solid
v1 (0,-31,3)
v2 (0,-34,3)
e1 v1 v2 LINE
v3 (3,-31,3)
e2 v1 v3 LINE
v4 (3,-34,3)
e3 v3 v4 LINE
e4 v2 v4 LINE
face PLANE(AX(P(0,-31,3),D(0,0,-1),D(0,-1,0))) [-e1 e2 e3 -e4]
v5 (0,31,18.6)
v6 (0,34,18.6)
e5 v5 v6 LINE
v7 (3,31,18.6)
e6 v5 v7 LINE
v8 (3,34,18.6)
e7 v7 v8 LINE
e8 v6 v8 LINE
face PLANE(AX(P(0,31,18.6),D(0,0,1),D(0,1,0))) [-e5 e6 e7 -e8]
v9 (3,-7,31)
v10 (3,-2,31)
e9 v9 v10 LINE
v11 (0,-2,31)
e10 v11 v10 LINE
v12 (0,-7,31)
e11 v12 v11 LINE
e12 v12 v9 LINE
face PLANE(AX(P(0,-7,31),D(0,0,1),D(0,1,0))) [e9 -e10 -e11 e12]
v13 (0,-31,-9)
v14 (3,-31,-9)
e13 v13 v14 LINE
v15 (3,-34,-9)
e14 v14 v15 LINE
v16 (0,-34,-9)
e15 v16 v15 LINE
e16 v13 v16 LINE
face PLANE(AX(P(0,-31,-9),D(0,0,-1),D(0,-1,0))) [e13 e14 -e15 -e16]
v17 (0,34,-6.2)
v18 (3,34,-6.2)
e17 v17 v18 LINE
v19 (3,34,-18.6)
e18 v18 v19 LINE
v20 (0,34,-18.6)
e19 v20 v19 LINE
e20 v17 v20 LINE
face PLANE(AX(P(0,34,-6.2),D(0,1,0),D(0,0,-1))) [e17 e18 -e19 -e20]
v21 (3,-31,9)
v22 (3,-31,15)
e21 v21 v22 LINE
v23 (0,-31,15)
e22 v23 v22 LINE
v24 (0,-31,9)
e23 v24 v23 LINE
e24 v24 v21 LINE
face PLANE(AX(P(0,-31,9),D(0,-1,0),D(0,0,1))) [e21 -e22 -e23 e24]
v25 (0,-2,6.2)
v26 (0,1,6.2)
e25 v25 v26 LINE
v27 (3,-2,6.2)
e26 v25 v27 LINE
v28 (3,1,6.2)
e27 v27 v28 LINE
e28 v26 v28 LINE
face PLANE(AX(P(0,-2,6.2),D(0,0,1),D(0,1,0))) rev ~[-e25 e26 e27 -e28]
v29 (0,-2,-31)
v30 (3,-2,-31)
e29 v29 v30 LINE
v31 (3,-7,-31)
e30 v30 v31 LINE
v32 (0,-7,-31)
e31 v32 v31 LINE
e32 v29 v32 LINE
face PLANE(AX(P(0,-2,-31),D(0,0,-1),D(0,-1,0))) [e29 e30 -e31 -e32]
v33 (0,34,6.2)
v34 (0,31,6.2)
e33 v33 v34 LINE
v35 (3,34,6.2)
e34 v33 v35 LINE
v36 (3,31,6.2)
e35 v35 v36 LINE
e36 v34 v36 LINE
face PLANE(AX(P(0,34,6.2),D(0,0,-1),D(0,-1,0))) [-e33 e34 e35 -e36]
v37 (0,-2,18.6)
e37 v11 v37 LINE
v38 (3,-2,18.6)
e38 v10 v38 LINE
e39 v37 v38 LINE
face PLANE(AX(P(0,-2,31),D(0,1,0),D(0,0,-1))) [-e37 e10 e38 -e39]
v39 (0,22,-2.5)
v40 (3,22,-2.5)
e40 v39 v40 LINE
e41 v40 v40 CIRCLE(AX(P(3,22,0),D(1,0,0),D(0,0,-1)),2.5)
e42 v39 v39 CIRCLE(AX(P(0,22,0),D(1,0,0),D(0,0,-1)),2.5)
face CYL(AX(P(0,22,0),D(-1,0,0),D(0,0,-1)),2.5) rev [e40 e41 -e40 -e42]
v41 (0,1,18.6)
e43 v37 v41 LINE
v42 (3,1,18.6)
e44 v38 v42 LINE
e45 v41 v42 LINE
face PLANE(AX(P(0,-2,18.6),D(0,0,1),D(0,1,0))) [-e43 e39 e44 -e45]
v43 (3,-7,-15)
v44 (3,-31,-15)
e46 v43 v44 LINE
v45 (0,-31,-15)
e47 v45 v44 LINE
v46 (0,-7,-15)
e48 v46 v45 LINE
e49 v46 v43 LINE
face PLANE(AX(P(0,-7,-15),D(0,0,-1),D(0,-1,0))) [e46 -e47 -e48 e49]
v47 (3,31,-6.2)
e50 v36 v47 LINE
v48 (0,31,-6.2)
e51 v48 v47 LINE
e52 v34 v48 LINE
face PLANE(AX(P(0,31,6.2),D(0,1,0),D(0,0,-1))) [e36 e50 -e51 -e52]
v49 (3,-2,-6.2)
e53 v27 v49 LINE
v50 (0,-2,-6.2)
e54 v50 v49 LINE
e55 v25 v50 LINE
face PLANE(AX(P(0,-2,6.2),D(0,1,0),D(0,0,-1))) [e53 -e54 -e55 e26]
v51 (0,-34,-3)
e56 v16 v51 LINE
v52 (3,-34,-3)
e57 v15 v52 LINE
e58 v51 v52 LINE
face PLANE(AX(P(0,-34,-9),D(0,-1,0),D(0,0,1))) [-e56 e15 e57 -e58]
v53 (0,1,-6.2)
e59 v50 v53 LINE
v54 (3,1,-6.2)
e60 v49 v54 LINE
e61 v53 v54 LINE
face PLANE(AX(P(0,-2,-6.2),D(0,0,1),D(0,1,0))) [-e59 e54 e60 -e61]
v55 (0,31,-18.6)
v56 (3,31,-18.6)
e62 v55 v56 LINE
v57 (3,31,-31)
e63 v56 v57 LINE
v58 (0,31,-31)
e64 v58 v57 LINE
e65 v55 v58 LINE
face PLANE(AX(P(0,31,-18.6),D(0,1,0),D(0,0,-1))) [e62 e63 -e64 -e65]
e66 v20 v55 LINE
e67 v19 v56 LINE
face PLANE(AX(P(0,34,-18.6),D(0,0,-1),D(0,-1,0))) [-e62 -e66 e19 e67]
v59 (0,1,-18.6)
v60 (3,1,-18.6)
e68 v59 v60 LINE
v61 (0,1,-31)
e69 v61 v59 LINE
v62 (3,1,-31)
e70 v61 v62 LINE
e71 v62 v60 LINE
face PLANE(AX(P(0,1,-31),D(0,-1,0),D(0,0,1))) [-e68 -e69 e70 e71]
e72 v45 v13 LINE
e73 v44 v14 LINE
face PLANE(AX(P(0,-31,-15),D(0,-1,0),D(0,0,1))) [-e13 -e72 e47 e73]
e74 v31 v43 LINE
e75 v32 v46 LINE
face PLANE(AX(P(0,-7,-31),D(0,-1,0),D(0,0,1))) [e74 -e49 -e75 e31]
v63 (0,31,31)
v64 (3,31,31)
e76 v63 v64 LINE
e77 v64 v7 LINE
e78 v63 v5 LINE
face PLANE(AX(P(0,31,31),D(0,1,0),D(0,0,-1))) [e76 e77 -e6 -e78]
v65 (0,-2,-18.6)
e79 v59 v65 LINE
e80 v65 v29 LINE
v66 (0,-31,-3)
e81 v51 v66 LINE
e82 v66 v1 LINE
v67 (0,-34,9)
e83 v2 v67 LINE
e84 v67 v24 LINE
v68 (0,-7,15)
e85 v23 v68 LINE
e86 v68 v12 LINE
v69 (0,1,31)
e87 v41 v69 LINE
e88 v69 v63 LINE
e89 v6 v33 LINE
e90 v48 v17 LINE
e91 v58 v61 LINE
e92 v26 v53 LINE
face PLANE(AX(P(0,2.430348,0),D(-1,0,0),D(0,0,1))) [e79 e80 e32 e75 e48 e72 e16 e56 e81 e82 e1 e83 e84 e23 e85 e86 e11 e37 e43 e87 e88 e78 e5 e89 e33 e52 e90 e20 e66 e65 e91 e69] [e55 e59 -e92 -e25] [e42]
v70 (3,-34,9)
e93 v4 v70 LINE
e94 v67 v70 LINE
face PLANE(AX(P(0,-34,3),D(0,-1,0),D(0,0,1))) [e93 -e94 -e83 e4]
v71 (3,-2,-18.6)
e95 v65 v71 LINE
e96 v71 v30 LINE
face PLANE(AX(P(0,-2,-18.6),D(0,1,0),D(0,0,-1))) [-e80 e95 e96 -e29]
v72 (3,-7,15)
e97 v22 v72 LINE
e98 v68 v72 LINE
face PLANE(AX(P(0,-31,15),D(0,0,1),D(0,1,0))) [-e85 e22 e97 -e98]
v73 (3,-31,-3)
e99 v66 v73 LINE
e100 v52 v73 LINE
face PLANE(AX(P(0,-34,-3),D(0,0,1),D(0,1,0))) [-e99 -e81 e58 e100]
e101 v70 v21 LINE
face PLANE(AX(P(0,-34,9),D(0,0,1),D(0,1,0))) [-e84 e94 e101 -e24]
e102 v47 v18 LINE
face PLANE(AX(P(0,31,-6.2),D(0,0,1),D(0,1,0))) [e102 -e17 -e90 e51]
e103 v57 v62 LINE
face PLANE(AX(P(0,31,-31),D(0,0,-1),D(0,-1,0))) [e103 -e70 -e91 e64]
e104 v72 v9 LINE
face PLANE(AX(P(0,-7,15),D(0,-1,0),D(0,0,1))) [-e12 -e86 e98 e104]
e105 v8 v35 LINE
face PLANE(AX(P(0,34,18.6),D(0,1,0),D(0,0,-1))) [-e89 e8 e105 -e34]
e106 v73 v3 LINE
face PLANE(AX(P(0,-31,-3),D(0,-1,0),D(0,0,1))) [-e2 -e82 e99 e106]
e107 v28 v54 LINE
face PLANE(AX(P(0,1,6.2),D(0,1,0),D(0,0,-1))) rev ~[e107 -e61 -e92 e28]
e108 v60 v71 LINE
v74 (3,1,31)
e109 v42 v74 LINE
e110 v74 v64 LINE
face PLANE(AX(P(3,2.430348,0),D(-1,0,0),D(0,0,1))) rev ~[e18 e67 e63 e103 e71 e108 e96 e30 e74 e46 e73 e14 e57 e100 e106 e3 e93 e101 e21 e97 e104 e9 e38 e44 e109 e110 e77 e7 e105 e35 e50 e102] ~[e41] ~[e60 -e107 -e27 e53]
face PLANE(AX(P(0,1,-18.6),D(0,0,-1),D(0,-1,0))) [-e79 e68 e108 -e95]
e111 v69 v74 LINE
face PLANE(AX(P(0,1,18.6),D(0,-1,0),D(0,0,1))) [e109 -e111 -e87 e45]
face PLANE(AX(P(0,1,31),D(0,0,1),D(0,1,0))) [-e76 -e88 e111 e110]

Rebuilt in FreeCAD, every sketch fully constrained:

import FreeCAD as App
import Part
import Sketcher

doc = App.newDocument("Part")
body = doc.addObject("PartDesign::Body", "Body")

# Sketch on YZ plane
sketch1 = body.newObject("Sketcher::SketchObject", "Sketch")
sketch1.AttachmentSupport = (doc.getObject("YZ_Plane"), [""])
sketch1.MapMode = "FlatFace"
sketch1.addGeometry(Part.LineSegment(App.Vector(-7, -31, 0), App.Vector(-2, -31, 0)), False)
sketch1.addGeometry(Part.LineSegment(App.Vector(-2, -31, 0), App.Vector(-2, -18.6, 0)), False)
sketch1.addGeometry(Part.LineSegment(App.Vector(-2, -18.6, 0), App.Vector(1, -18.6, 0)), False)
sketch1.addGeometry(Part.LineSegment(App.Vector(1, -18.6, 0), App.Vector(1, -31, 0)), False)
sketch1.addGeometry(Part.LineSegment(App.Vector(1, -31, 0), App.Vector(31, -31, 0)), False)
sketch1.addGeometry(Part.LineSegment(App.Vector(31, -31, 0), App.Vector(31, -18.6, 0)), False)
sketch1.addGeometry(Part.LineSegment(App.Vector(31, -18.6, 0), App.Vector(34, -18.6, 0)), False)
sketch1.addGeometry(Part.LineSegment(App.Vector(34, -18.6, 0), App.Vector(34, -6.2, 0)), False)
sketch1.addGeometry(Part.LineSegment(App.Vector(34, -6.2, 0), App.Vector(31, -6.2, 0)), False)
sketch1.addGeometry(Part.LineSegment(App.Vector(31, -6.2, 0), App.Vector(31, 6.2, 0)), False)
sketch1.addGeometry(Part.LineSegment(App.Vector(31, 6.2, 0), App.Vector(34, 6.2, 0)), False)
sketch1.addGeometry(Part.LineSegment(App.Vector(34, 6.2, 0), App.Vector(34, 18.6, 0)), False)
sketch1.addGeometry(Part.LineSegment(App.Vector(34, 18.6, 0), App.Vector(31, 18.6, 0)), False)
sketch1.addGeometry(Part.LineSegment(App.Vector(31, 18.6, 0), App.Vector(31, 31, 0)), False)
sketch1.addGeometry(Part.LineSegment(App.Vector(31, 31, 0), App.Vector(1, 31, 0)), False)
sketch1.addGeometry(Part.LineSegment(App.Vector(1, 31, 0), App.Vector(1, 18.6, 0)), False)
sketch1.addGeometry(Part.LineSegment(App.Vector(1, 18.6, 0), App.Vector(-2, 18.6, 0)), False)
sketch1.addGeometry(Part.LineSegment(App.Vector(-2, 18.6, 0), App.Vector(-2, 31, 0)), False)
sketch1.addGeometry(Part.LineSegment(App.Vector(-2, 31, 0), App.Vector(-7, 31, 0)), False)
sketch1.addGeometry(Part.LineSegment(App.Vector(-7, 31, 0), App.Vector(-7, 15, 0)), False)
sketch1.addGeometry(Part.LineSegment(App.Vector(-7, 15, 0), App.Vector(-31, 15, 0)), False)
sketch1.addGeometry(Part.LineSegment(App.Vector(-31, 15, 0), App.Vector(-31, 9, 0)), False)
sketch1.addGeometry(Part.LineSegment(App.Vector(-31, 9, 0), App.Vector(-34, 9, 0)), False)
sketch1.addGeometry(Part.LineSegment(App.Vector(-34, 9, 0), App.Vector(-34, 3, 0)), False)
sketch1.addGeometry(Part.LineSegment(App.Vector(-34, 3, 0), App.Vector(-31, 3, 0)), False)
sketch1.addGeometry(Part.LineSegment(App.Vector(-31, 3, 0), App.Vector(-31, -3, 0)), False)
sketch1.addGeometry(Part.LineSegment(App.Vector(-31, -3, 0), App.Vector(-34, -3, 0)), False)
sketch1.addGeometry(Part.LineSegment(App.Vector(-34, -3, 0), App.Vector(-34, -9, 0)), False)
sketch1.addGeometry(Part.LineSegment(App.Vector(-34, -9, 0), App.Vector(-31, -9, 0)), False)
sketch1.addGeometry(Part.LineSegment(App.Vector(-31, -9, 0), App.Vector(-31, -15, 0)), False)
sketch1.addGeometry(Part.LineSegment(App.Vector(-31, -15, 0), App.Vector(-7, -15, 0)), False)
sketch1.addGeometry(Part.LineSegment(App.Vector(-7, -15, 0), App.Vector(-7, -31, 0)), False)
sketch1.addGeometry(Part.LineSegment(App.Vector(-2, 6.2, 0), App.Vector(1, 6.2, 0)), False)
sketch1.addGeometry(Part.LineSegment(App.Vector(1, 6.2, 0), App.Vector(1, -6.2, 0)), False)
sketch1.addGeometry(Part.LineSegment(App.Vector(1, -6.2, 0), App.Vector(-2, -6.2, 0)), False)
sketch1.addGeometry(Part.LineSegment(App.Vector(-2, -6.2, 0), App.Vector(-2, 6.2, 0)), False)
sketch1.addGeometry(Part.Circle(App.Vector(22, 0, 0), App.Vector(0, 0, 1), 2.5), False)
sketch1.addConstraint(Sketcher.Constraint("Coincident", 0, 2, 1, 1))
sketch1.addConstraint(Sketcher.Constraint("Coincident", 1, 2, 2, 1))
sketch1.addConstraint(Sketcher.Constraint("Coincident", 2, 2, 3, 1))
sketch1.addConstraint(Sketcher.Constraint("Coincident", 3, 2, 4, 1))
sketch1.addConstraint(Sketcher.Constraint("Coincident", 4, 2, 5, 1))
sketch1.addConstraint(Sketcher.Constraint("Coincident", 5, 2, 6, 1))
sketch1.addConstraint(Sketcher.Constraint("Coincident", 6, 2, 7, 1))
sketch1.addConstraint(Sketcher.Constraint("Coincident", 7, 2, 8, 1))
sketch1.addConstraint(Sketcher.Constraint("Coincident", 8, 2, 9, 1))
sketch1.addConstraint(Sketcher.Constraint("Coincident", 9, 2, 10, 1))
sketch1.addConstraint(Sketcher.Constraint("Coincident", 10, 2, 11, 1))
sketch1.addConstraint(Sketcher.Constraint("Coincident", 11, 2, 12, 1))
sketch1.addConstraint(Sketcher.Constraint("Coincident", 12, 2, 13, 1))
sketch1.addConstraint(Sketcher.Constraint("Coincident", 13, 2, 14, 1))
sketch1.addConstraint(Sketcher.Constraint("Coincident", 14, 2, 15, 1))
sketch1.addConstraint(Sketcher.Constraint("Coincident", 15, 2, 16, 1))
sketch1.addConstraint(Sketcher.Constraint("Coincident", 16, 2, 17, 1))
sketch1.addConstraint(Sketcher.Constraint("Coincident", 17, 2, 18, 1))
sketch1.addConstraint(Sketcher.Constraint("Coincident", 18, 2, 19, 1))
sketch1.addConstraint(Sketcher.Constraint("Coincident", 19, 2, 20, 1))
sketch1.addConstraint(Sketcher.Constraint("Coincident", 20, 2, 21, 1))
sketch1.addConstraint(Sketcher.Constraint("Coincident", 21, 2, 22, 1))
sketch1.addConstraint(Sketcher.Constraint("Coincident", 22, 2, 23, 1))
sketch1.addConstraint(Sketcher.Constraint("Coincident", 23, 2, 24, 1))
sketch1.addConstraint(Sketcher.Constraint("Coincident", 24, 2, 25, 1))
sketch1.addConstraint(Sketcher.Constraint("Coincident", 25, 2, 26, 1))
sketch1.addConstraint(Sketcher.Constraint("Coincident", 26, 2, 27, 1))
sketch1.addConstraint(Sketcher.Constraint("Coincident", 27, 2, 28, 1))
sketch1.addConstraint(Sketcher.Constraint("Coincident", 28, 2, 29, 1))
sketch1.addConstraint(Sketcher.Constraint("Coincident", 29, 2, 30, 1))
sketch1.addConstraint(Sketcher.Constraint("Coincident", 30, 2, 31, 1))
sketch1.addConstraint(Sketcher.Constraint("Coincident", 31, 2, 0, 1))
sketch1.addConstraint(Sketcher.Constraint("Coincident", 32, 2, 33, 1))
sketch1.addConstraint(Sketcher.Constraint("Coincident", 33, 2, 34, 1))
sketch1.addConstraint(Sketcher.Constraint("Coincident", 34, 2, 35, 1))
sketch1.addConstraint(Sketcher.Constraint("Coincident", 35, 2, 32, 1))
sketch1.addConstraint(Sketcher.Constraint("Horizontal", 0))
sketch1.addConstraint(Sketcher.Constraint("Vertical", 1))
sketch1.addConstraint(Sketcher.Constraint("Horizontal", 2))
sketch1.addConstraint(Sketcher.Constraint("Vertical", 3))
sketch1.addConstraint(Sketcher.Constraint("Horizontal", 4))
sketch1.addConstraint(Sketcher.Constraint("Vertical", 5))
sketch1.addConstraint(Sketcher.Constraint("Horizontal", 6))
sketch1.addConstraint(Sketcher.Constraint("Vertical", 7))
sketch1.addConstraint(Sketcher.Constraint("Horizontal", 8))
sketch1.addConstraint(Sketcher.Constraint("Vertical", 9))
sketch1.addConstraint(Sketcher.Constraint("Horizontal", 10))
sketch1.addConstraint(Sketcher.Constraint("Vertical", 11))
sketch1.addConstraint(Sketcher.Constraint("Horizontal", 12))
sketch1.addConstraint(Sketcher.Constraint("Vertical", 13))
sketch1.addConstraint(Sketcher.Constraint("Horizontal", 14))
sketch1.addConstraint(Sketcher.Constraint("Vertical", 15))
sketch1.addConstraint(Sketcher.Constraint("Horizontal", 16))
sketch1.addConstraint(Sketcher.Constraint("Vertical", 17))
sketch1.addConstraint(Sketcher.Constraint("Horizontal", 18))
sketch1.addConstraint(Sketcher.Constraint("Vertical", 19))
sketch1.addConstraint(Sketcher.Constraint("Horizontal", 20))
sketch1.addConstraint(Sketcher.Constraint("Vertical", 21))
sketch1.addConstraint(Sketcher.Constraint("Horizontal", 22))
sketch1.addConstraint(Sketcher.Constraint("Vertical", 23))
sketch1.addConstraint(Sketcher.Constraint("Horizontal", 24))
sketch1.addConstraint(Sketcher.Constraint("Vertical", 25))
sketch1.addConstraint(Sketcher.Constraint("Horizontal", 26))
sketch1.addConstraint(Sketcher.Constraint("Vertical", 27))
sketch1.addConstraint(Sketcher.Constraint("Horizontal", 28))
sketch1.addConstraint(Sketcher.Constraint("Vertical", 29))
sketch1.addConstraint(Sketcher.Constraint("Horizontal", 30))
sketch1.addConstraint(Sketcher.Constraint("Vertical", 31))
sketch1.addConstraint(Sketcher.Constraint("Horizontal", 32))
sketch1.addConstraint(Sketcher.Constraint("Vertical", 33))
sketch1.addConstraint(Sketcher.Constraint("Horizontal", 34))
sketch1.addConstraint(Sketcher.Constraint("Vertical", 35))
sketch1.addConstraint(Sketcher.Constraint("Symmetric", 7, 2, 10, 2, -1))
sketch1.addConstraint(Sketcher.Constraint("Symmetric", 5, 2, 12, 2, -1))
sketch1.addConstraint(Sketcher.Constraint("Symmetric", 3, 2, 14, 2, -1))
sketch1.addConstraint(Sketcher.Constraint("Symmetric", 1, 2, 16, 2, -1))
sketch1.addConstraint(Sketcher.Constraint("Symmetric", 23, 2, 26, 2, -1))
sketch1.addConstraint(Sketcher.Constraint("Symmetric", 21, 2, 28, 2, -1))
sketch1.addConstraint(Sketcher.Constraint("Symmetric", 19, 2, 30, 2, -1))
sketch1.addConstraint(Sketcher.Constraint("PointOnObject", 36, 3, -1))
sketch1.addConstraint(Sketcher.Constraint("Horizontal", 0, 2, 3, 2))
sketch1.addConstraint(Sketcher.Constraint("Horizontal", 2, 2, 5, 2))
sketch1.addConstraint(Sketcher.Constraint("Horizontal", 14, 2, 17, 2))
sketch1.addConstraint(Sketcher.Constraint("Horizontal", 10, 2, 32, 2))
sketch1.addConstraint(Sketcher.Constraint("Horizontal", 8, 2, 33, 2))
sketch1.addConstraint(Sketcher.Constraint("Vertical", 5, 2, 8, 2))
sketch1.addConstraint(Sketcher.Constraint("Vertical", 21, 2, 24, 2))
sketch1.addConstraint(Sketcher.Constraint("Vertical", 15, 2, 32, 2))
sketch1.addConstraint(Sketcher.Constraint("Vertical", 17, 2, 34, 2))
sketch1.addConstraint(Sketcher.Constraint("Equal", 2, 6))
sketch1.addConstraint(Sketcher.Constraint("Equal", 16, 22))
sketch1.addConstraint(Sketcher.Constraint("Equal", 5, 7))
sketch1.addConstraint(Sketcher.Constraint("Equal", 7, 9))
sketch1.addConstraint(Sketcher.Constraint("Equal", 21, 23))
sketch1.addConstraint(Sketcher.Constraint("Equal", 23, 25))
sketch1.addConstraint(Sketcher.Constraint("Diameter", 36, 5.0))
sketch1.addConstraint(Sketcher.Constraint("DistanceX", 0, 1, 0, 2, 5.0))
sketch1.addConstraint(Sketcher.Constraint("DistanceX", 2, 1, 2, 2, 3.0))
sketch1.addConstraint(Sketcher.Constraint("DistanceX", 4, 1, 4, 2, 30.0))
sketch1.addConstraint(Sketcher.Constraint("DistanceX", 20, 2, 20, 1, 24.0))
sketch1.addConstraint(Sketcher.Constraint("DistanceY", 19, 2, 19, 1, 16.0))
sketch1.addConstraint(Sketcher.Constraint("DistanceY", 21, 2, 21, 1, 6.0))
sketch1.addConstraint(Sketcher.Constraint("DistanceX", -1, 1, 36, 3, 22.0))
sketch1.addConstraint(Sketcher.Constraint("DistanceX", 0, 2, -1, 1, 2.0))
pad1 = body.newObject("PartDesign::Pad", "Pad")
pad1.Profile = sketch1
pad1.Length = 3

doc.recompute()
